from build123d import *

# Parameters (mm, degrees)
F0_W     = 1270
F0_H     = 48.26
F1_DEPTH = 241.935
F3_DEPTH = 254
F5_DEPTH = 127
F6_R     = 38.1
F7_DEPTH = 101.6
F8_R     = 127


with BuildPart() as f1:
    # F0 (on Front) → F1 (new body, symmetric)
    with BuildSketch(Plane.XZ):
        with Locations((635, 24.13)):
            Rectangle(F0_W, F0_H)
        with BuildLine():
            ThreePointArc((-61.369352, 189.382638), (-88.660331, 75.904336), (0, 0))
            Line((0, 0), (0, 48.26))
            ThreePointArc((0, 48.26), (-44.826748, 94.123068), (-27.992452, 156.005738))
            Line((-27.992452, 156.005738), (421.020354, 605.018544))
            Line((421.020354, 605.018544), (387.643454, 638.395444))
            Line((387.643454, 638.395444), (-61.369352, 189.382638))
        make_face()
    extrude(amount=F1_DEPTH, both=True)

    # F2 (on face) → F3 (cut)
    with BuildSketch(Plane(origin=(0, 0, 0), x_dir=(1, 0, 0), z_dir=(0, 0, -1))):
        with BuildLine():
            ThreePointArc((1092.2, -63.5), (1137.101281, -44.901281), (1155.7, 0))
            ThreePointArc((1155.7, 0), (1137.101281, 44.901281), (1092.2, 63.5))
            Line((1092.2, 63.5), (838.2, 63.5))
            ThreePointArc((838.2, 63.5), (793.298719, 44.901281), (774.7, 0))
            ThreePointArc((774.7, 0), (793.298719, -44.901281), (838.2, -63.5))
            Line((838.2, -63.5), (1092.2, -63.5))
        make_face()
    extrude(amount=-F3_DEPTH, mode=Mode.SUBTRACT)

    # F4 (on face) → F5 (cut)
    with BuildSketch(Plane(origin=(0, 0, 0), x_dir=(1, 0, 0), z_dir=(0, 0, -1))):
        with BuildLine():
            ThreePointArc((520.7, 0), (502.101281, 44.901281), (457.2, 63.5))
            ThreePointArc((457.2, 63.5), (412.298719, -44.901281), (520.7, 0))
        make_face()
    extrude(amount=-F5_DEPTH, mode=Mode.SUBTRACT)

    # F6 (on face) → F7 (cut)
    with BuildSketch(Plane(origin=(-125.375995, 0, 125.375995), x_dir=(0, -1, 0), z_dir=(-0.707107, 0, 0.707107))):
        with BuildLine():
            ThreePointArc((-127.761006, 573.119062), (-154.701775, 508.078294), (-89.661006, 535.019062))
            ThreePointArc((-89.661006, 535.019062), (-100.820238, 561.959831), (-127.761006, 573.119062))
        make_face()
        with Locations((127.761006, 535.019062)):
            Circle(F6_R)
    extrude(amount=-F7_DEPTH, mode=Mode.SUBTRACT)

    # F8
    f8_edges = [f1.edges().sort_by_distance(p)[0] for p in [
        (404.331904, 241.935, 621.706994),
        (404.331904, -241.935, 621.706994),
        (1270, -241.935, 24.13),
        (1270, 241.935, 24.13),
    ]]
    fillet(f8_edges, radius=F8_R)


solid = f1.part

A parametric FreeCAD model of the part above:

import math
import FreeCAD as App
import Part
import Sketcher
from FreeCAD import Vector
Q = App.Units.Quantity


def edges_at(feature, points):
    """Names of the edges that pass closest to the given points."""
    edges = feature.Shape.Edges
    near = lambda p: min(range(len(edges)), key=lambda i: edges[i].distToShape(Part.Vertex(*p))[0])
    return sorted({f"Edge{near(p) + 1}" for p in points})

doc = App.newDocument("Part")
params = doc.addObject("Spreadsheet::Sheet", "Params")
for row, (alias, value) in enumerate([
    ("sketch1_radius", "4.4 in"),
    ("sketch1_width", "50 in"),
    ("sketch1_length", "25 in"),
    ("sketch1_height", "1.9 in"),
    ("pad1_length", "19.05 in"),
    ("sketch2_radius", "2.4999999 in"),
    ("sketch2_width", "10 in"),
    ("pocket1_length", "10 in"),
    ("sketch3_radius", "2.4999999 in"),
    ("pocket2_length", "5 in"),
    ("sketch4_diameter", "3 in"),
    ("pocket3_length", "4 in"),
    ("fillet_radius", "5 in"),
], start=1):
    params.set(f"A{row}", alias)
    params.set(f"B{row}", "=" + value)
    params.setAlias(f"B{row}", alias)

body = doc.addObject("PartDesign::Body", "Body")

# Sketch on XZ plane
sketch1 = body.newObject("Sketcher::SketchObject", "Sketch")
sketch1.AttachmentSupport = (doc.getObject("XZ_Plane"), [""])
sketch1.MapMode = "FlatFace"
sketch1.addGeometry(Part.LineSegment(Vector(0, 0, 0), Vector(1270, 0, 0)), False)
sketch1.addGeometry(Part.LineSegment(Vector(1270, 0, 0), Vector(1270, 48, 0)), False)
sketch1.addGeometry(Part.LineSegment(Vector(1270, 48, 0), Vector(0, 48, 0)), False)
sketch1.addGeometry(Part.ArcOfCircle(Part.Circle(Vector(18, 110, 0), Vector(0, 0, 1), 65), math.radians(135), math.radians(254)), False)
sketch1.addGeometry(Part.LineSegment(Vector(-28, 156, 0), Vector(421, 605, 0)), False)
sketch1.addGeometry(Part.LineSegment(Vector(421, 605, 0), Vector(388, 638, 0)), False)
sketch1.addGeometry(Part.LineSegment(Vector(388, 638, 0), Vector(-61, 189, 0)), False)
sketch1.addGeometry(Part.ArcOfCircle(Part.Circle(Vector(18, 110, 0), Vector(0, 0, 1), 112), math.radians(135), math.radians(261)), False)
sketch1.addConstraint(Sketcher.Constraint("Coincident", 0, 2, 1, 1))
sketch1.addConstraint(Sketcher.Constraint("Coincident", 1, 2, 2, 1))
sketch1.addConstraint(Sketcher.Constraint("Coincident", 2, 2, 3, 2))
sketch1.addConstraint(Sketcher.Constraint("Tangent", 3, 1, 4, 1))
sketch1.addConstraint(Sketcher.Constraint("Coincident", 4, 2, 5, 1))
sketch1.addConstraint(Sketcher.Constraint("Coincident", 5, 2, 6, 1))
sketch1.addConstraint(Sketcher.Constraint("Tangent", 6, 2, 7, 1))
sketch1.addConstraint(Sketcher.Constraint("Coincident", 7, 2, 0, 1))
sketch1.addConstraint(Sketcher.Constraint("Horizontal", 0))
sketch1.addConstraint(Sketcher.Constraint("Vertical", 1))
sketch1.addConstraint(Sketcher.Constraint("Horizontal", 2))
sketch1.addConstraint(Sketcher.Constraint("Coincident", 7, 2, -1, 1))
sketch1.addConstraint(Sketcher.Constraint("Coincident", 7, 3, 3, 3))
sketch1.addConstraint(Sketcher.Constraint("PointOnObject", 2, 2, -2))
sketch1.addConstraint(Sketcher.Constraint("Perpendicular", 4, 5))
sketch1.addConstraint(Sketcher.Constraint("Perpendicular", 5, 6))
sketch1.addConstraint(Sketcher.Constraint("Radius", 7, Q("4.4 in")))
sketch1.addConstraint(Sketcher.Constraint("DistanceX", 0, 1, 0, 2, Q("50 in")))
sketch1.addConstraint(Sketcher.Constraint("Distance", 4, Q("25 in")))
sketch1.addConstraint(Sketcher.Constraint("DistanceY", 1, 1, 1, 2, Q("1.9 in")))
sketch1.addConstraint(Sketcher.Constraint("Angle", 4, Q("45 deg")))
sketch1.addConstraint(Sketcher.Constraint("Radius", 3, 64.557936))
sketch1.setExpression("Constraints[16]", "Params.sketch1_radius")
sketch1.setExpression("Constraints[17]", "Params.sketch1_width")
sketch1.setExpression("Constraints[18]", "Params.sketch1_length")
sketch1.setExpression("Constraints[19]", "Params.sketch1_height")
pad1 = body.newObject("PartDesign::Pad", "Pad")
pad1.Profile = sketch1
pad1.setExpression("Length", "Params.pad1_length")
pad1.Midplane = True

# Sketch on XY plane
sketch2 = body.newObject("Sketcher::SketchObject", "Sketch001")
sketch2.AttachmentSupport = (doc.getObject("XY_Plane"), [""])
sketch2.MapMode = "FlatFace"
sketch2.addGeometry(Part.ArcOfCircle(Part.Circle(Vector(1092, 0, 0), Vector(0, 0, 1), 63), math.radians(0), math.radians(90)), False)
sketch2.addGeometry(Part.ArcOfCircle(Part.Circle(Vector(1092, 0, 0), Vector(0, 0, 1), 63), math.radians(-90), math.radians(0)), False)
sketch2.addGeometry(Part.LineSegment(Vector(1092, -64, 0), Vector(838, -64, 0)), False)
sketch2.addGeometry(Part.ArcOfCircle(Part.Circle(Vector(838, 0, 0), Vector(0, 0, 1), 63), math.radians(180), math.radians(270)), False)
sketch2.addGeometry(Part.ArcOfCircle(Part.Circle(Vector(838, 0, 0), Vector(0, 0, 1), 63), math.radians(90), math.radians(180)), False)
sketch2.addGeometry(Part.LineSegment(Vector(838, 64, 0), Vector(1092, 64, 0)), False)
sketch2.addConstraint(Sketcher.Constraint("Tangent", 0, 1, 1, 2))
sketch2.addConstraint(Sketcher.Constraint("Tangent", 1, 1, 2, 1))
sketch2.addConstraint(Sketcher.Constraint("Tangent", 2, 2, 3, 2))
sketch2.addConstraint(Sketcher.Constraint("Tangent", 3, 1, 4, 2))
sketch2.addConstraint(Sketcher.Constraint("Tangent", 4, 1, 5, 1))
sketch2.addConstraint(Sketcher.Constraint("Tangent", 5, 2, 0, 2))
sketch2.addConstraint(Sketcher.Constraint("Horizontal", 2))
sketch2.addConstraint(Sketcher.Constraint("Horizontal", 5))
sketch2.addConstraint(Sketcher.Constraint("Equal", 0, 1))
sketch2.addConstraint(Sketcher.Constraint("Equal", 1, 3))
sketch2.addConstraint(Sketcher.Constraint("PointOnObject", 0, 3, -1))
sketch2.addConstraint(Sketcher.Constraint("PointOnObject", 0, 1, -1))
sketch2.addConstraint(Sketcher.Constraint("PointOnObject", 3, 1, -1))
sketch2.addConstraint(Sketcher.Constraint("Radius", 0, Q("2.4999999 in")))
sketch2.addConstraint(Sketcher.Constraint("DistanceX", 2, 2, 2, 1, Q("10 in")))
sketch2.addConstraint(Sketcher.Constraint("DistanceX", -1, 1, 0, 3, Q("43.0000001 in")))
sketch2.setExpression("Constraints[13]", "Params.sketch2_radius")
sketch2.setExpression("Constraints[14]", "Params.sketch2_width")
pocket1 = body.newObject("PartDesign::Pocket", "Pocket")
pocket1.Profile = sketch2
pocket1.setExpression("Length", "Params.pocket1_length")
pocket1.Reversed = True

# Sketch on XY plane
sketch3 = body.newObject("Sketcher::SketchObject", "Sketch002")
sketch3.AttachmentSupport = (doc.getObject("XY_Plane"), [""])
sketch3.MapMode = "FlatFace"
sketch3.addGeometry(Part.ArcOfCircle(Part.Circle(Vector(457, 0, 0), Vector(0, 0, 1), 63), math.radians(-90), math.radians(0)), False)
sketch3.addGeometry(Part.ArcOfCircle(Part.Circle(Vector(457, 0, 0), Vector(0, 0, 1), 64), math.radians(0), math.radians(270)), False)
sketch3.addConstraint(Sketcher.Constraint("Tangent", 0, 1, 1, 2))
sketch3.addConstraint(Sketcher.Constraint("Coincident", 1, 1, 0, 2))
sketch3.addConstraint(Sketcher.Constraint("PointOnObject", 0, 3, -1))
sketch3.addConstraint(Sketcher.Constraint("PointOnObject", 1, 1, -1))
sketch3.addConstraint(Sketcher.Constraint("Vertical", 1, 3, 0, 1))
sketch3.addConstraint(Sketcher.Constraint("Radius", 0, Q("2.4999999 in")))
sketch3.addConstraint(Sketcher.Constraint("DistanceX", -1, 1, 0, 3, Q("18.0000001 in")))
sketch3.setExpression("Constraints[5]", "Params.sketch3_radius")
pocket2 = body.newObject("PartDesign::Pocket", "Pocket001")
pocket2.Profile = sketch3
pocket2.setExpression("Length", "Params.pocket2_length")
pocket2.Reversed = True

# Sketch on an angled plane
sketch4 = body.newObject("Sketcher::SketchObject", "Sketch003")
sketch4.Placement = App.Placement(Vector(-125.375995, 0, 125.375995), App.Rotation(Vector(0, -1, 0), Vector(0.707106781, 0, 0.707106781), Vector(-0.707106781, 0, 0.707106781), "ZXY"))
sketch4.addGeometry(Part.ArcOfCircle(Part.Circle(Vector(-128, 535, 0), Vector(0, 0, 1), 38), math.radians(90), math.radians(360)), False)
sketch4.addGeometry(Part.ArcOfCircle(Part.Circle(Vector(-128, 535, 0), Vector(0, 0, 1), 38), math.radians(0), math.radians(90)), False)
sketch4.addGeometry(Part.Circle(Vector(128, 535, 0), Vector(0, 0, 1), 38), False)
sketch4.addConstraint(Sketcher.Constraint("Tangent", 0, 1, 1, 2))
sketch4.addConstraint(Sketcher.Constraint("Coincident", 1, 1, 0, 2))
sketch4.addConstraint(Sketcher.Constraint("Equal", 1, 2))
sketch4.addConstraint(Sketcher.Constraint("Symmetric", 0, 3, 2, 3, -2))
sketch4.addConstraint(Sketcher.Constraint("Horizontal", 2, 3, 1, 1))
sketch4.addConstraint(Sketcher.Constraint("Vertical", 1, 3, 0, 1))
sketch4.addConstraint(Sketcher.Constraint("Diameter", 2, Q("3 in")))
sketch4.addConstraint(Sketcher.Constraint("DistanceY", -1, 1, 0, 3, 535.019062))
sketch4.addConstraint(Sketcher.Constraint("DistanceX", 1, 3, 2, 3, 255.522012))
sketch4.setExpression("Constraints[6]", "Params.sketch4_diameter")
pocket3 = body.newObject("PartDesign::Pocket", "Pocket002")
pocket3.Profile = sketch4
pocket3.setExpression("Length", "Params.pocket3_length")
doc.recompute()

fillet = body.newObject("PartDesign::Fillet", "Fillet")
fillet.Base = (pocket3, edges_at(pocket3, [
    (404.332, 241.935, 621.707),
    (404.332, -241.935, 621.707),
    (1270, -241.935, 24.13),
    (1270, 241.935, 24.13),
]))
fillet.setExpression("Radius", "Params.fillet_radius")

doc.recompute()
